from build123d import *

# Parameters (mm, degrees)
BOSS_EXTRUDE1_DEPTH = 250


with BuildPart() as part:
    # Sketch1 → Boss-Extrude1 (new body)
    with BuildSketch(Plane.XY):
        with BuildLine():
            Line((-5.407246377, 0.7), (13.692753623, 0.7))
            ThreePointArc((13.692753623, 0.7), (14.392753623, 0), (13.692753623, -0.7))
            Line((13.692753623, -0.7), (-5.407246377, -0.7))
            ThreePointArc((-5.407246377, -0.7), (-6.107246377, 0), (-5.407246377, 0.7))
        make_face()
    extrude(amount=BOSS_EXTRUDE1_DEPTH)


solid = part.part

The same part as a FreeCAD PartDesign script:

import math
import FreeCAD as App
import Part
import Sketcher

V = App.Vector

doc = App.newDocument("Part")
body = doc.addObject("PartDesign::Body", "Body")

# Sketch on XY plane
sketch1 = body.newObject("Sketcher::SketchObject", "Sketch")
sketch1.AttachmentSupport = (doc.getObject("XY_Plane"), [""])
sketch1.MapMode = "FlatFace"
sketch1.addGeometry(Part.LineSegment(V(13.7, 0.7, 0), V(-5.4, 0.7, 0)), False)
sketch1.addGeometry(Part.ArcOfCircle(Part.Circle(V(-5.4, 0, 0), V(0, 0, 1), 0.7), math.radians(90), math.radians(270)), False)
sketch1.addGeometry(Part.LineSegment(V(-5.4, -0.7, 0), V(13.7, -0.7, 0)), False)
sketch1.addGeometry(Part.ArcOfCircle(Part.Circle(V(13.7, 0, 0), V(0, 0, 1), 0.7), math.radians(-90), math.radians(90)), False)
sketch1.addConstraint(Sketcher.Constraint("Tangent", 0, 2, 1, 1))
sketch1.addConstraint(Sketcher.Constraint("Tangent", 1, 2, 2, 1))
sketch1.addConstraint(Sketcher.Constraint("Tangent", 2, 2, 3, 1))
sketch1.addConstraint(Sketcher.Constraint("Tangent", 3, 2, 0, 1))
sketch1.addConstraint(Sketcher.Constraint("Horizontal", 0))
sketch1.addConstraint(Sketcher.Constraint("Horizontal", 2))
sketch1.addConstraint(Sketcher.Constraint("PointOnObject", 1, 3, -1))
sketch1.addConstraint(Sketcher.Constraint("Radius", 1, 0.7))
sketch1.addConstraint(Sketcher.Constraint("DistanceX", 0, 2, 0, 1, 19.1))
sketch1.addConstraint(Sketcher.Constraint("DistanceX", 1, 3, -1, 1, 5.407246))
pad1 = body.newObject("PartDesign::Pad", "Pad")
pad1.Profile = sketch1
pad1.Length = 250

doc.recompute()
